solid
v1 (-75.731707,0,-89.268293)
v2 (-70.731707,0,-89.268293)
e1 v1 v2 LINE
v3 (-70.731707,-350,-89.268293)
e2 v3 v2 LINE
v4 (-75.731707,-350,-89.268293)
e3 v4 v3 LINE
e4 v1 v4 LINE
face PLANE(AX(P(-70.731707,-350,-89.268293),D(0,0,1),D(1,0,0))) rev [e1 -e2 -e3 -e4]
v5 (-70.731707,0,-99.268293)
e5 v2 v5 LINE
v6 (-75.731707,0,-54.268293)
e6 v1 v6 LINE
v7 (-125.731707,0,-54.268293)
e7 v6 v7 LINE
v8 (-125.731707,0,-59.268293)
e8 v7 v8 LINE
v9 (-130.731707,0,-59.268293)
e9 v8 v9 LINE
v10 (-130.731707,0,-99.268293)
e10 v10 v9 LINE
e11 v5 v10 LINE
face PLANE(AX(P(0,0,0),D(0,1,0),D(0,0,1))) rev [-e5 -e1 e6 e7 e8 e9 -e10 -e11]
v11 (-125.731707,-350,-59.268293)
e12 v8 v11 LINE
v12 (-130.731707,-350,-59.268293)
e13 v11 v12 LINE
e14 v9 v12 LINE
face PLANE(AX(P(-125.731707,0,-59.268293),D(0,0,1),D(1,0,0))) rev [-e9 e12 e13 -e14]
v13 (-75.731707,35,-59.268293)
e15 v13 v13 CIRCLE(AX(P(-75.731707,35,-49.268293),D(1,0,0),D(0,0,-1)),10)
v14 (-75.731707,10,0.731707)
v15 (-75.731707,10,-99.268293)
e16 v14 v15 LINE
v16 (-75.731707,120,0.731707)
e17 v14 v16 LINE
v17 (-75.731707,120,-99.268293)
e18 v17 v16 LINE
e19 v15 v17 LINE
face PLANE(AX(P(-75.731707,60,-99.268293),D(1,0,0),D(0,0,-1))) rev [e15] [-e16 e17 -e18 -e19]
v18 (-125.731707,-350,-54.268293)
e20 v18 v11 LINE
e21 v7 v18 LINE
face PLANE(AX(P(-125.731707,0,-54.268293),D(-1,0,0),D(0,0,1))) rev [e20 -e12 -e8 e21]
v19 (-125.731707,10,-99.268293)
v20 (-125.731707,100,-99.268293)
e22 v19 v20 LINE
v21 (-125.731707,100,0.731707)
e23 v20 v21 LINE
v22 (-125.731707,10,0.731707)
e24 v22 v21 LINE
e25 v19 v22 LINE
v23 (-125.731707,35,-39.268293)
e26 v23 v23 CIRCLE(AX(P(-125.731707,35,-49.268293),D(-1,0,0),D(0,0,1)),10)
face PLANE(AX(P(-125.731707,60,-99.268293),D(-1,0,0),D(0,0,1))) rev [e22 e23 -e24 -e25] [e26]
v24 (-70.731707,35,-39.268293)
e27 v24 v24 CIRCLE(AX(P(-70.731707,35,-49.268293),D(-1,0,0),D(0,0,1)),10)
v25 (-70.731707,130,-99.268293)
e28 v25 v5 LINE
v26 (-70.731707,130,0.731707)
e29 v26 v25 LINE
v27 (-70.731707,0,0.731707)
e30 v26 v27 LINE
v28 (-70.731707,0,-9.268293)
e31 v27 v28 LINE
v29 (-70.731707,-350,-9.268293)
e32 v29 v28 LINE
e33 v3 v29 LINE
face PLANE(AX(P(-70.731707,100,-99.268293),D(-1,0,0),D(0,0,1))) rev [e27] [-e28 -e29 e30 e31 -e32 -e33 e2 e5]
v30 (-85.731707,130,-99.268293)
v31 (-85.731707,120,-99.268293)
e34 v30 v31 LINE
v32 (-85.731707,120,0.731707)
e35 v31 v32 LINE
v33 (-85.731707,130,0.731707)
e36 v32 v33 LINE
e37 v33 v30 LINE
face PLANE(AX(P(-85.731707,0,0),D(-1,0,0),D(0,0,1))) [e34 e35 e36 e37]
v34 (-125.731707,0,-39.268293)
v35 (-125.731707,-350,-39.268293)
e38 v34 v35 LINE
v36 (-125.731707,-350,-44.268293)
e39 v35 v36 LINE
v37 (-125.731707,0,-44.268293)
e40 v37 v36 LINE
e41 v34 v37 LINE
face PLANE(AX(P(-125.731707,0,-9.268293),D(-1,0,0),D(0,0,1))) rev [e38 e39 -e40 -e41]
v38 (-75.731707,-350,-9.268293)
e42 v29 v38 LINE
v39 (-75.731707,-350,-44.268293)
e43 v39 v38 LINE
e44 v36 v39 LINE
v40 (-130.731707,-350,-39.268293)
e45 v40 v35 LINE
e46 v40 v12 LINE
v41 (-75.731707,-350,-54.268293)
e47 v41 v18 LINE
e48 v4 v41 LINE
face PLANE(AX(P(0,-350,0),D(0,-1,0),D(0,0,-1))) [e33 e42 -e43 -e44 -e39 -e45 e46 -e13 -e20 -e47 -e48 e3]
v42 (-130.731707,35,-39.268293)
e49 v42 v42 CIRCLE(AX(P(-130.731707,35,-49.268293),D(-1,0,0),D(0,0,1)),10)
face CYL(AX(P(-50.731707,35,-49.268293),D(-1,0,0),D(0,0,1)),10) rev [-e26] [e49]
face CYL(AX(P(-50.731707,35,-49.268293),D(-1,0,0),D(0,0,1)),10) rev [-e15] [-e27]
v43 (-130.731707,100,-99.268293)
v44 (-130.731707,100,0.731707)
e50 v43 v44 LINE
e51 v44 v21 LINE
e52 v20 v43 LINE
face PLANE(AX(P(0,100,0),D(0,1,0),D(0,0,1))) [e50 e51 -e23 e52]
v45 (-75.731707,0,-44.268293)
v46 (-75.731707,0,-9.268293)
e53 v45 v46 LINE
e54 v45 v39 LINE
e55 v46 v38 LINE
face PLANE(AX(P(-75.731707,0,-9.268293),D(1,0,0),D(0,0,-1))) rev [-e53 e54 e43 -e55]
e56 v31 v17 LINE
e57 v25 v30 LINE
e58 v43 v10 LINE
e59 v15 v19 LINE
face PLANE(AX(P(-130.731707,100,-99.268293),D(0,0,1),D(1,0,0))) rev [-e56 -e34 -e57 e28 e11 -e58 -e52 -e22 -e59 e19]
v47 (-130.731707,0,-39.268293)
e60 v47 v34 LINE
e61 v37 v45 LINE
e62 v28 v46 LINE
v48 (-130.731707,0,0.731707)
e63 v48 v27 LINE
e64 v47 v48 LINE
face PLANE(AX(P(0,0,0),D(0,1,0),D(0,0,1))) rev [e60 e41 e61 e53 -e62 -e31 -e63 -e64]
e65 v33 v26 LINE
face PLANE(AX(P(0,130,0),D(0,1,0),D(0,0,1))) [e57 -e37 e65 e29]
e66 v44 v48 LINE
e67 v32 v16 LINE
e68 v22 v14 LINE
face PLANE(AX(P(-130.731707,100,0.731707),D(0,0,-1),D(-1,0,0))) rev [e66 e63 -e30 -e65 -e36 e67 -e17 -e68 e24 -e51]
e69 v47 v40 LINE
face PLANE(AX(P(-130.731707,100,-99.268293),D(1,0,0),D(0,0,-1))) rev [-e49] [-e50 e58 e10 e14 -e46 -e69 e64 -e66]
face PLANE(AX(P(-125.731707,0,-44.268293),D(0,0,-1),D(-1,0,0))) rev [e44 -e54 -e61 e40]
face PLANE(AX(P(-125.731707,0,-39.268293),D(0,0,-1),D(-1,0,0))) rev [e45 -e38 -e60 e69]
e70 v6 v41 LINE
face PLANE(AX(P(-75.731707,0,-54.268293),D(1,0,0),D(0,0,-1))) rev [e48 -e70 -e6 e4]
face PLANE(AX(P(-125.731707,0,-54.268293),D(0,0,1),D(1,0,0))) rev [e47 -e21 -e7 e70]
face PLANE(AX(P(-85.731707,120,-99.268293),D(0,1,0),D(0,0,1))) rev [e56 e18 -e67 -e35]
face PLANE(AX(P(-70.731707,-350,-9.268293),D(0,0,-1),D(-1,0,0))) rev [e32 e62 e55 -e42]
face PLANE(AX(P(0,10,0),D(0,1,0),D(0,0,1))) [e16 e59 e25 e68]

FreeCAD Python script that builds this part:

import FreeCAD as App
import Part
import Sketcher

doc = App.newDocument("Part")
body = doc.addObject("PartDesign::Body", "Body")

# Sketch on XZ plane
sketch1 = doc.addObject("Sketcher::SketchObject", "Sketch")
body.addObject(sketch1)
sketch1.AttachmentSupport = (doc.XZ_Plane, [""])
sketch1.MapMode = "FlatFace"
sketch1.addGeometry([
    Part.LineSegment(App.Vector(-130.731707, -99.268293, 0), App.Vector(-130.731707, 0.731707, 0)),
    Part.LineSegment(App.Vector(-130.731707, 0.731707, 0), App.Vector(-70.731707, 0.731707, 0)),
    Part.LineSegment(App.Vector(-70.731707, 0.731707, 0), App.Vector(-70.731707, -99.268293, 0)),
    Part.LineSegment(App.Vector(-70.731707, -99.268293, 0), App.Vector(-130.731707, -99.268293, 0)),
], False)
sketch1.addConstraint([
    Sketcher.Constraint("Coincident", 0, 2, 1, 1),
    Sketcher.Constraint("Coincident", 1, 2, 2, 1),
    Sketcher.Constraint("Coincident", 2, 2, 3, 1),
    Sketcher.Constraint("Coincident", 3, 2, 0, 1),
    Sketcher.Constraint("Vertical", 0),
    Sketcher.Constraint("Horizontal", 1),
    Sketcher.Constraint("Vertical", 2),
    Sketcher.Constraint("Horizontal", 3),
    Sketcher.Constraint("DistanceX", 1, 1, 1, 2, 60.0),
    Sketcher.Constraint("DistanceY", 0, 1, 0, 2, 100.0),
    Sketcher.Constraint("DistanceX", 0, 2, -1, 1, 130.731707),
    Sketcher.Constraint("DistanceY", -1, 1, 0, 2, 0.731707),
])
pad1 = doc.addObject("PartDesign::Pad", "Pad")
body.addObject(pad1)
pad1.Profile = sketch1
pad1.Length = 100
pad1.Reversed = True

# Sketch on XZ plane
sketch2 = doc.addObject("Sketcher::SketchObject", "Sketch001")
body.addObject(sketch2)
sketch2.AttachmentSupport = (doc.XZ_Plane, [""])
sketch2.MapMode = "FlatFace"
sketch2.AttachmentOffset = App.Placement(App.Vector(0, 0, -100), App.Rotation())
sketch2.addGeometry([
    Part.LineSegment(App.Vector(-125.731707, -99.268293, 0), App.Vector(-125.731707, 0.731707, 0)),
    Part.LineSegment(App.Vector(-125.731707, 0.731707, 0), App.Vector(-75.731707, 0.731707, 0)),
    Part.LineSegment(App.Vector(-75.731707, 0.731707, 0), App.Vector(-75.731707, -99.268293, 0)),
    Part.LineSegment(App.Vector(-75.731707, -99.268293, 0), App.Vector(-125.731707, -99.268293, 0)),
], False)
sketch2.addConstraint([
    Sketcher.Constraint("Coincident", 0, 2, 1, 1),
    Sketcher.Constraint("Coincident", 1, 2, 2, 1),
    Sketcher.Constraint("Coincident", 2, 2, 3, 1),
    Sketcher.Constraint("Coincident", 3, 2, 0, 1),
    Sketcher.Constraint("Vertical", 0),
    Sketcher.Constraint("Horizontal", 1),
    Sketcher.Constraint("Vertical", 2),
    Sketcher.Constraint("Horizontal", 3),
    Sketcher.Constraint("DistanceX", 1, 1, 1, 2, 50.0),
    Sketcher.Constraint("DistanceY", 0, 1, 0, 2, 100.0),
    Sketcher.Constraint("DistanceX", 0, 2, -1, 1, 125.731707),
    Sketcher.Constraint("DistanceY", -1, 1, 0, 2, 0.731707),
])
pocket1 = doc.addObject("PartDesign::Pocket", "Pocket")
body.addObject(pocket1)
pocket1.Profile = sketch2
pocket1.Length = 40
pocket1.Reversed = True

# Sketch on XZ plane
sketch3 = doc.addObject("Sketcher::SketchObject", "Sketch002")
body.addObject(sketch3)
sketch3.AttachmentSupport = (doc.XZ_Plane, [""])
sketch3.MapMode = "FlatFace"
sketch3.AttachmentOffset = App.Placement(App.Vector(0, 0, -100), App.Rotation())
sketch3.addGeometry([
    Part.LineSegment(App.Vector(-75.731707, -99.268293, 0), App.Vector(-75.731707, 0.731707, 0)),
    Part.LineSegment(App.Vector(-75.731707, 0.731707, 0), App.Vector(-70.731707, 0.731707, 0)),
    Part.LineSegment(App.Vector(-70.731707, 0.731707, 0), App.Vector(-70.731707, -99.268293, 0)),
    Part.LineSegment(App.Vector(-70.731707, -99.268293, 0), App.Vector(-75.731707, -99.268293, 0)),
], False)
sketch3.addConstraint([
    Sketcher.Constraint("Coincident", 0, 2, 1, 1),
    Sketcher.Constraint("Coincident", 1, 2, 2, 1),
    Sketcher.Constraint("Coincident", 2, 2, 3, 1),
    Sketcher.Constraint("Coincident", 3, 2, 0, 1),
    Sketcher.Constraint("Vertical", 0),
    Sketcher.Constraint("Horizontal", 1),
    Sketcher.Constraint("Vertical", 2),
    Sketcher.Constraint("Horizontal", 3),
    Sketcher.Constraint("DistanceX", 1, 1, 1, 2, 5.0),
    Sketcher.Constraint("DistanceY", 0, 1, 0, 2, 100.0),
    Sketcher.Constraint("DistanceX", 0, 2, -1, 1, 75.731707),
    Sketcher.Constraint("DistanceY", -1, 1, 0, 2, 0.731707),
])
pad2 = doc.addObject("PartDesign::Pad", "Pad001")
body.addObject(pad2)
pad2.Profile = sketch3
pad2.Length = 30
pad2.Reversed = True

# Sketch on YZ plane
sketch4 = doc.addObject("Sketcher::SketchObject", "Sketch003")
body.addObject(sketch4)
sketch4.AttachmentSupport = (doc.YZ_Plane, [""])
sketch4.MapMode = "FlatFace"
sketch4.AttachmentOffset = App.Placement(App.Vector(0, 0, -75.731707), App.Rotation())
sketch4.addGeometry([
    Part.LineSegment(App.Vector(130, -99.268293, 0), App.Vector(120, -99.268293, 0)),
    Part.LineSegment(App.Vector(120, -99.268293, 0), App.Vector(120, 0.731707, 0)),
    Part.LineSegment(App.Vector(120, 0.731707, 0), App.Vector(130, 0.731707, 0)),
    Part.LineSegment(App.Vector(130, 0.731707, 0), App.Vector(130, -99.268293, 0)),
], False)
sketch4.addConstraint([
    Sketcher.Constraint("Coincident", 0, 2, 1, 1),
    Sketcher.Constraint("Coincident", 1, 2, 2, 1),
    Sketcher.Constraint("Coincident", 2, 2, 3, 1),
    Sketcher.Constraint("Coincident", 3, 2, 0, 1),
    Sketcher.Constraint("Horizontal", 0),
    Sketcher.Constraint("Vertical", 1),
    Sketcher.Constraint("Horizontal", 2),
    Sketcher.Constraint("Vertical", 3),
    Sketcher.Constraint("DistanceX", 0, 2, 0, 1, 10.0),
    Sketcher.Constraint("DistanceY", 1, 1, 1, 2, 100.0),
    Sketcher.Constraint("DistanceX", -1, 1, 0, 2, 120.0),
    Sketcher.Constraint("DistanceY", 0, 2, -1, 1, 99.268293),
])
pad3 = doc.addObject("PartDesign::Pad", "Pad002")
body.addObject(pad3)
pad3.Profile = sketch4
pad3.Length = 10
pad3.Reversed = True

# Sketch on XZ plane
sketch5 = doc.addObject("Sketcher::SketchObject", "Sketch004")
body.addObject(sketch5)
sketch5.AttachmentSupport = (doc.XZ_Plane, [""])
sketch5.MapMode = "FlatFace"
sketch5.addGeometry([
    Part.LineSegment(App.Vector(-70.731707, -89.268293, 0), App.Vector(-70.731707, -9.268293, 0)),
    Part.LineSegment(App.Vector(-70.731707, -9.268293, 0), App.Vector(-130.731707, -9.268293, 0)),
    Part.LineSegment(App.Vector(-130.731707, -9.268293, 0), App.Vector(-130.731707, -89.268293, 0)),
    Part.LineSegment(App.Vector(-130.731707, -89.268293, 0), App.Vector(-70.731707, -89.268293, 0)),
], False)
sketch5.addConstraint([
    Sketcher.Constraint("Coincident", 0, 2, 1, 1),
    Sketcher.Constraint("Coincident", 1, 2, 2, 1),
    Sketcher.Constraint("Coincident", 2, 2, 3, 1),
    Sketcher.Constraint("Coincident", 3, 2, 0, 1),
    Sketcher.Constraint("Vertical", 0),
    Sketcher.Constraint("Horizontal", 1),
    Sketcher.Constraint("Vertical", 2),
    Sketcher.Constraint("Horizontal", 3),
    Sketcher.Constraint("DistanceX", 1, 2, 1, 1, 60.0),
    Sketcher.Constraint("DistanceY", 0, 1, 0, 2, 80.0),
    Sketcher.Constraint("DistanceX", 0, 2, -1, 1, 70.731707),
    Sketcher.Constraint("DistanceY", 0, 2, -1, 1, 9.268293),
])
pad4 = doc.addObject("PartDesign::Pad", "Pad003")
body.addObject(pad4)
pad4.Profile = sketch5
pad4.Length = 350

# Sketch on XZ plane
sketch6 = doc.addObject("Sketcher::SketchObject", "Sketch005")
body.addObject(sketch6)
sketch6.AttachmentSupport = (doc.XZ_Plane, [""])
sketch6.MapMode = "FlatFace"
sketch6.AttachmentOffset = App.Placement(App.Vector(0, 0, -60), App.Rotation())
sketch6.addGeometry([
    Part.LineSegment(App.Vector(-125.731707, -99.268293, 0), App.Vector(-125.731707, 0.731707, 0)),
    Part.LineSegment(App.Vector(-125.731707, 0.731707, 0), App.Vector(-75.731707, 0.731707, 0)),
    Part.LineSegment(App.Vector(-75.731707, 0.731707, 0), App.Vector(-75.731707, -99.268293, 0)),
    Part.LineSegment(App.Vector(-75.731707, -99.268293, 0), App.Vector(-125.731707, -99.268293, 0)),
], False)
sketch6.addConstraint([
    Sketcher.Constraint("Coincident", 0, 2, 1, 1),
    Sketcher.Constraint("Coincident", 1, 2, 2, 1),
    Sketcher.Constraint("Coincident", 2, 2, 3, 1),
    Sketcher.Constraint("Coincident", 3, 2, 0, 1),
    Sketcher.Constraint("Vertical", 0),
    Sketcher.Constraint("Horizontal", 1),
    Sketcher.Constraint("Vertical", 2),
    Sketcher.Constraint("Horizontal", 3),
    Sketcher.Constraint("DistanceX", 1, 1, 1, 2, 50.0),
    Sketcher.Constraint("DistanceY", 0, 1, 0, 2, 100.0),
    Sketcher.Constraint("DistanceX", 0, 2, -1, 1, 125.731707),
    Sketcher.Constraint("DistanceY", -1, 1, 0, 2, 0.731707),
])
pocket2 = doc.addObject("PartDesign::Pocket", "Pocket001")
body.addObject(pocket2)
pocket2.Profile = sketch6
pocket2.Length = 50
pocket2.Reversed = True

# Sketch on YZ plane
sketch7 = doc.addObject("Sketcher::SketchObject", "Sketch006")
body.addObject(sketch7)
sketch7.AttachmentSupport = (doc.YZ_Plane, [""])
sketch7.MapMode = "FlatFace"
sketch7.AttachmentOffset = App.Placement(App.Vector(0, 0, -130.731707), App.Rotation())
sketch7.addGeometry(Part.Circle(App.Vector(35, -49.268293, 0), App.Vector(0, 0, 1), 10), False)
sketch7.addConstraint([
    Sketcher.Constraint("Diameter", 0, 20.0),
    Sketcher.Constraint("DistanceX", -1, 1, 0, 3, 35.0),
    Sketcher.Constraint("DistanceY", 0, 3, -1, 1, 49.268293),
])
pocket3 = doc.addObject("PartDesign::Pocket", "Pocket002")
body.addObject(pocket3)
pocket3.Profile = sketch7
pocket3.Length = 80
pocket3.Reversed = True

# Sketch on XZ plane
sketch8 = doc.addObject("Sketcher::SketchObject", "Sketch007")
body.addObject(sketch8)
sketch8.AttachmentSupport = (doc.XZ_Plane, [""])
sketch8.MapMode = "FlatFace"
sketch8.AttachmentOffset = App.Placement(App.Vector(0, 0, 350), App.Rotation())
sketch8.addGeometry([
    Part.LineSegment(App.Vector(-75.731707, -44.268293, 0), App.Vector(-75.731707, -9.268293, 0)),  # 0
    Part.LineSegment(App.Vector(-75.731707, -9.268293, 0), App.Vector(-125.731707, -9.268293, 0)),  # 1
    Part.LineSegment(App.Vector(-125.731707, -9.268293, 0), App.Vector(-125.731707, -44.268293, 0)),  # 2
    Part.LineSegment(App.Vector(-125.731707, -44.268293, 0), App.Vector(-75.731707, -44.268293, 0)),  # 3
    Part.LineSegment(App.Vector(-75.731707, -89.268293, 0), App.Vector(-75.731707, -54.268293, 0)),  # 4
    Part.LineSegment(App.Vector(-75.731707, -54.268293, 0), App.Vector(-125.731707, -54.268293, 0)),  # 5
    Part.LineSegment(App.Vector(-125.731707, -54.268293, 0), App.Vector(-125.731707, -89.268293, 0)),  # 6
    Part.LineSegment(App.Vector(-125.731707, -89.268293, 0), App.Vector(-75.731707, -89.268293, 0)),  # 7
], False)
sketch8.addConstraint([
    Sketcher.Constraint("Coincident", 0, 2, 1, 1),
    Sketcher.Constraint("Coincident", 1, 2, 2, 1),
    Sketcher.Constraint("Coincident", 2, 2, 3, 1),
    Sketcher.Constraint("Coincident", 3, 2, 0, 1),
    Sketcher.Constraint("Coincident", 4, 2, 5, 1),
    Sketcher.Constraint("Coincident", 5, 2, 6, 1),
    Sketcher.Constraint("Coincident", 6, 2, 7, 1),
    Sketcher.Constraint("Coincident", 7, 2, 4, 1),
    Sketcher.Constraint("Vertical", 0),
    Sketcher.Constraint("Horizontal", 1),
    Sketcher.Constraint("Vertical", 2),
    Sketcher.Constraint("Horizontal", 3),
    Sketcher.Constraint("Vertical", 4),
    Sketcher.Constraint("Horizontal", 5),
    Sketcher.Constraint("Vertical", 6),
    Sketcher.Constraint("Horizontal", 7),
    Sketcher.Constraint("Vertical", 3, 2, 4, 2),
    Sketcher.Constraint("Vertical", 2, 2, 5, 2),
    Sketcher.Constraint("Equal", 2, 4),
    Sketcher.Constraint("DistanceX", 1, 2, 1, 1, 50.0),
    Sketcher.Constraint("DistanceY", 0, 1, 0, 2, 35.0),
    Sketcher.Constraint("DistanceY", 4, 2, 3, 2, 10.0),
    Sketcher.Constraint("DistanceX", 0, 2, -1, 1, 75.731707),
    Sketcher.Constraint("DistanceY", 0, 2, -1, 1, 9.268293),
])
pocket4 = doc.addObject("PartDesign::Pocket", "Pocket003")
body.addObject(pocket4)
pocket4.Profile = sketch8
pocket4.Length = 350

# Sketch on XZ plane
sketch9 = doc.addObject("Sketcher::SketchObject", "Sketch008")
body.addObject(sketch9)
sketch9.AttachmentSupport = (doc.XZ_Plane, [""])
sketch9.MapMode = "FlatFace"
sketch9.AttachmentOffset = App.Placement(App.Vector(0, 0, 350), App.Rotation())
sketch9.addGeometry([
    Part.LineSegment(App.Vector(-125.731707, -89.268293, 0), App.Vector(-125.731707, -59.268293, 0)),  # 0
    Part.LineSegment(App.Vector(-125.731707, -59.268293, 0), App.Vector(-130.731707, -59.268293, 0)),  # 1
    Part.LineSegment(App.Vector(-130.731707, -59.268293, 0), App.Vector(-130.731707, -89.268293, 0)),  # 2
    Part.LineSegment(App.Vector(-130.731707, -89.268293, 0), App.Vector(-125.731707, -89.268293, 0)),  # 3
    Part.LineSegment(App.Vector(-125.731707, -39.268293, 0), App.Vector(-125.731707, -9.268293, 0)),  # 4
    Part.LineSegment(App.Vector(-125.731707, -9.268293, 0), App.Vector(-130.731707, -9.268293, 0)),  # 5
    Part.LineSegment(App.Vector(-130.731707, -9.268293, 0), App.Vector(-130.731707, -39.268293, 0)),  # 6
    Part.LineSegment(App.Vector(-130.731707, -39.268293, 0), App.Vector(-125.731707, -39.268293, 0)),  # 7
], False)
sketch9.addConstraint([
    Sketcher.Constraint("Coincident", 0, 2, 1, 1),
    Sketcher.Constraint("Coincident", 1, 2, 2, 1),
    Sketcher.Constraint("Coincident", 2, 2, 3, 1),
    Sketcher.Constraint("Coincident", 3, 2, 0, 1),
    Sketcher.Constraint("Coincident", 4, 2, 5, 1),
    Sketcher.Constraint("Coincident", 5, 2, 6, 1),
    Sketcher.Constraint("Coincident", 6, 2, 7, 1),
    Sketcher.Constraint("Coincident", 7, 2, 4, 1),
    Sketcher.Constraint("Vertical", 0),
    Sketcher.Constraint("Horizontal", 1),
    Sketcher.Constraint("Vertical", 2),
    Sketcher.Constraint("Horizontal", 3),
    Sketcher.Constraint("Vertical", 4),
    Sketcher.Constraint("Horizontal", 5),
    Sketcher.Constraint("Vertical", 6),
    Sketcher.Constraint("Horizontal", 7),
    Sketcher.Constraint("Vertical", 3, 2, 4, 2),
    Sketcher.Constraint("Vertical", 2, 2, 5, 2),
    Sketcher.Constraint("Equal", 2, 4),
    Sketcher.Constraint("DistanceX", 1, 2, 1, 1, 5.0),
    Sketcher.Constraint("DistanceY", 0, 1, 0, 2, 30.0),
    Sketcher.Constraint("DistanceY", 0, 2, 4, 2, 50.0),
    Sketcher.Constraint("DistanceX", 0, 2, -1, 1, 125.731707),
    Sketcher.Constraint("DistanceY", 0, 2, -1, 1, 59.268293),
])
pocket5 = doc.addObject("PartDesign::Pocket", "Pocket004")
body.addObject(pocket5)
pocket5.Profile = sketch9
pocket5.Length = 350

doc.recompute()
